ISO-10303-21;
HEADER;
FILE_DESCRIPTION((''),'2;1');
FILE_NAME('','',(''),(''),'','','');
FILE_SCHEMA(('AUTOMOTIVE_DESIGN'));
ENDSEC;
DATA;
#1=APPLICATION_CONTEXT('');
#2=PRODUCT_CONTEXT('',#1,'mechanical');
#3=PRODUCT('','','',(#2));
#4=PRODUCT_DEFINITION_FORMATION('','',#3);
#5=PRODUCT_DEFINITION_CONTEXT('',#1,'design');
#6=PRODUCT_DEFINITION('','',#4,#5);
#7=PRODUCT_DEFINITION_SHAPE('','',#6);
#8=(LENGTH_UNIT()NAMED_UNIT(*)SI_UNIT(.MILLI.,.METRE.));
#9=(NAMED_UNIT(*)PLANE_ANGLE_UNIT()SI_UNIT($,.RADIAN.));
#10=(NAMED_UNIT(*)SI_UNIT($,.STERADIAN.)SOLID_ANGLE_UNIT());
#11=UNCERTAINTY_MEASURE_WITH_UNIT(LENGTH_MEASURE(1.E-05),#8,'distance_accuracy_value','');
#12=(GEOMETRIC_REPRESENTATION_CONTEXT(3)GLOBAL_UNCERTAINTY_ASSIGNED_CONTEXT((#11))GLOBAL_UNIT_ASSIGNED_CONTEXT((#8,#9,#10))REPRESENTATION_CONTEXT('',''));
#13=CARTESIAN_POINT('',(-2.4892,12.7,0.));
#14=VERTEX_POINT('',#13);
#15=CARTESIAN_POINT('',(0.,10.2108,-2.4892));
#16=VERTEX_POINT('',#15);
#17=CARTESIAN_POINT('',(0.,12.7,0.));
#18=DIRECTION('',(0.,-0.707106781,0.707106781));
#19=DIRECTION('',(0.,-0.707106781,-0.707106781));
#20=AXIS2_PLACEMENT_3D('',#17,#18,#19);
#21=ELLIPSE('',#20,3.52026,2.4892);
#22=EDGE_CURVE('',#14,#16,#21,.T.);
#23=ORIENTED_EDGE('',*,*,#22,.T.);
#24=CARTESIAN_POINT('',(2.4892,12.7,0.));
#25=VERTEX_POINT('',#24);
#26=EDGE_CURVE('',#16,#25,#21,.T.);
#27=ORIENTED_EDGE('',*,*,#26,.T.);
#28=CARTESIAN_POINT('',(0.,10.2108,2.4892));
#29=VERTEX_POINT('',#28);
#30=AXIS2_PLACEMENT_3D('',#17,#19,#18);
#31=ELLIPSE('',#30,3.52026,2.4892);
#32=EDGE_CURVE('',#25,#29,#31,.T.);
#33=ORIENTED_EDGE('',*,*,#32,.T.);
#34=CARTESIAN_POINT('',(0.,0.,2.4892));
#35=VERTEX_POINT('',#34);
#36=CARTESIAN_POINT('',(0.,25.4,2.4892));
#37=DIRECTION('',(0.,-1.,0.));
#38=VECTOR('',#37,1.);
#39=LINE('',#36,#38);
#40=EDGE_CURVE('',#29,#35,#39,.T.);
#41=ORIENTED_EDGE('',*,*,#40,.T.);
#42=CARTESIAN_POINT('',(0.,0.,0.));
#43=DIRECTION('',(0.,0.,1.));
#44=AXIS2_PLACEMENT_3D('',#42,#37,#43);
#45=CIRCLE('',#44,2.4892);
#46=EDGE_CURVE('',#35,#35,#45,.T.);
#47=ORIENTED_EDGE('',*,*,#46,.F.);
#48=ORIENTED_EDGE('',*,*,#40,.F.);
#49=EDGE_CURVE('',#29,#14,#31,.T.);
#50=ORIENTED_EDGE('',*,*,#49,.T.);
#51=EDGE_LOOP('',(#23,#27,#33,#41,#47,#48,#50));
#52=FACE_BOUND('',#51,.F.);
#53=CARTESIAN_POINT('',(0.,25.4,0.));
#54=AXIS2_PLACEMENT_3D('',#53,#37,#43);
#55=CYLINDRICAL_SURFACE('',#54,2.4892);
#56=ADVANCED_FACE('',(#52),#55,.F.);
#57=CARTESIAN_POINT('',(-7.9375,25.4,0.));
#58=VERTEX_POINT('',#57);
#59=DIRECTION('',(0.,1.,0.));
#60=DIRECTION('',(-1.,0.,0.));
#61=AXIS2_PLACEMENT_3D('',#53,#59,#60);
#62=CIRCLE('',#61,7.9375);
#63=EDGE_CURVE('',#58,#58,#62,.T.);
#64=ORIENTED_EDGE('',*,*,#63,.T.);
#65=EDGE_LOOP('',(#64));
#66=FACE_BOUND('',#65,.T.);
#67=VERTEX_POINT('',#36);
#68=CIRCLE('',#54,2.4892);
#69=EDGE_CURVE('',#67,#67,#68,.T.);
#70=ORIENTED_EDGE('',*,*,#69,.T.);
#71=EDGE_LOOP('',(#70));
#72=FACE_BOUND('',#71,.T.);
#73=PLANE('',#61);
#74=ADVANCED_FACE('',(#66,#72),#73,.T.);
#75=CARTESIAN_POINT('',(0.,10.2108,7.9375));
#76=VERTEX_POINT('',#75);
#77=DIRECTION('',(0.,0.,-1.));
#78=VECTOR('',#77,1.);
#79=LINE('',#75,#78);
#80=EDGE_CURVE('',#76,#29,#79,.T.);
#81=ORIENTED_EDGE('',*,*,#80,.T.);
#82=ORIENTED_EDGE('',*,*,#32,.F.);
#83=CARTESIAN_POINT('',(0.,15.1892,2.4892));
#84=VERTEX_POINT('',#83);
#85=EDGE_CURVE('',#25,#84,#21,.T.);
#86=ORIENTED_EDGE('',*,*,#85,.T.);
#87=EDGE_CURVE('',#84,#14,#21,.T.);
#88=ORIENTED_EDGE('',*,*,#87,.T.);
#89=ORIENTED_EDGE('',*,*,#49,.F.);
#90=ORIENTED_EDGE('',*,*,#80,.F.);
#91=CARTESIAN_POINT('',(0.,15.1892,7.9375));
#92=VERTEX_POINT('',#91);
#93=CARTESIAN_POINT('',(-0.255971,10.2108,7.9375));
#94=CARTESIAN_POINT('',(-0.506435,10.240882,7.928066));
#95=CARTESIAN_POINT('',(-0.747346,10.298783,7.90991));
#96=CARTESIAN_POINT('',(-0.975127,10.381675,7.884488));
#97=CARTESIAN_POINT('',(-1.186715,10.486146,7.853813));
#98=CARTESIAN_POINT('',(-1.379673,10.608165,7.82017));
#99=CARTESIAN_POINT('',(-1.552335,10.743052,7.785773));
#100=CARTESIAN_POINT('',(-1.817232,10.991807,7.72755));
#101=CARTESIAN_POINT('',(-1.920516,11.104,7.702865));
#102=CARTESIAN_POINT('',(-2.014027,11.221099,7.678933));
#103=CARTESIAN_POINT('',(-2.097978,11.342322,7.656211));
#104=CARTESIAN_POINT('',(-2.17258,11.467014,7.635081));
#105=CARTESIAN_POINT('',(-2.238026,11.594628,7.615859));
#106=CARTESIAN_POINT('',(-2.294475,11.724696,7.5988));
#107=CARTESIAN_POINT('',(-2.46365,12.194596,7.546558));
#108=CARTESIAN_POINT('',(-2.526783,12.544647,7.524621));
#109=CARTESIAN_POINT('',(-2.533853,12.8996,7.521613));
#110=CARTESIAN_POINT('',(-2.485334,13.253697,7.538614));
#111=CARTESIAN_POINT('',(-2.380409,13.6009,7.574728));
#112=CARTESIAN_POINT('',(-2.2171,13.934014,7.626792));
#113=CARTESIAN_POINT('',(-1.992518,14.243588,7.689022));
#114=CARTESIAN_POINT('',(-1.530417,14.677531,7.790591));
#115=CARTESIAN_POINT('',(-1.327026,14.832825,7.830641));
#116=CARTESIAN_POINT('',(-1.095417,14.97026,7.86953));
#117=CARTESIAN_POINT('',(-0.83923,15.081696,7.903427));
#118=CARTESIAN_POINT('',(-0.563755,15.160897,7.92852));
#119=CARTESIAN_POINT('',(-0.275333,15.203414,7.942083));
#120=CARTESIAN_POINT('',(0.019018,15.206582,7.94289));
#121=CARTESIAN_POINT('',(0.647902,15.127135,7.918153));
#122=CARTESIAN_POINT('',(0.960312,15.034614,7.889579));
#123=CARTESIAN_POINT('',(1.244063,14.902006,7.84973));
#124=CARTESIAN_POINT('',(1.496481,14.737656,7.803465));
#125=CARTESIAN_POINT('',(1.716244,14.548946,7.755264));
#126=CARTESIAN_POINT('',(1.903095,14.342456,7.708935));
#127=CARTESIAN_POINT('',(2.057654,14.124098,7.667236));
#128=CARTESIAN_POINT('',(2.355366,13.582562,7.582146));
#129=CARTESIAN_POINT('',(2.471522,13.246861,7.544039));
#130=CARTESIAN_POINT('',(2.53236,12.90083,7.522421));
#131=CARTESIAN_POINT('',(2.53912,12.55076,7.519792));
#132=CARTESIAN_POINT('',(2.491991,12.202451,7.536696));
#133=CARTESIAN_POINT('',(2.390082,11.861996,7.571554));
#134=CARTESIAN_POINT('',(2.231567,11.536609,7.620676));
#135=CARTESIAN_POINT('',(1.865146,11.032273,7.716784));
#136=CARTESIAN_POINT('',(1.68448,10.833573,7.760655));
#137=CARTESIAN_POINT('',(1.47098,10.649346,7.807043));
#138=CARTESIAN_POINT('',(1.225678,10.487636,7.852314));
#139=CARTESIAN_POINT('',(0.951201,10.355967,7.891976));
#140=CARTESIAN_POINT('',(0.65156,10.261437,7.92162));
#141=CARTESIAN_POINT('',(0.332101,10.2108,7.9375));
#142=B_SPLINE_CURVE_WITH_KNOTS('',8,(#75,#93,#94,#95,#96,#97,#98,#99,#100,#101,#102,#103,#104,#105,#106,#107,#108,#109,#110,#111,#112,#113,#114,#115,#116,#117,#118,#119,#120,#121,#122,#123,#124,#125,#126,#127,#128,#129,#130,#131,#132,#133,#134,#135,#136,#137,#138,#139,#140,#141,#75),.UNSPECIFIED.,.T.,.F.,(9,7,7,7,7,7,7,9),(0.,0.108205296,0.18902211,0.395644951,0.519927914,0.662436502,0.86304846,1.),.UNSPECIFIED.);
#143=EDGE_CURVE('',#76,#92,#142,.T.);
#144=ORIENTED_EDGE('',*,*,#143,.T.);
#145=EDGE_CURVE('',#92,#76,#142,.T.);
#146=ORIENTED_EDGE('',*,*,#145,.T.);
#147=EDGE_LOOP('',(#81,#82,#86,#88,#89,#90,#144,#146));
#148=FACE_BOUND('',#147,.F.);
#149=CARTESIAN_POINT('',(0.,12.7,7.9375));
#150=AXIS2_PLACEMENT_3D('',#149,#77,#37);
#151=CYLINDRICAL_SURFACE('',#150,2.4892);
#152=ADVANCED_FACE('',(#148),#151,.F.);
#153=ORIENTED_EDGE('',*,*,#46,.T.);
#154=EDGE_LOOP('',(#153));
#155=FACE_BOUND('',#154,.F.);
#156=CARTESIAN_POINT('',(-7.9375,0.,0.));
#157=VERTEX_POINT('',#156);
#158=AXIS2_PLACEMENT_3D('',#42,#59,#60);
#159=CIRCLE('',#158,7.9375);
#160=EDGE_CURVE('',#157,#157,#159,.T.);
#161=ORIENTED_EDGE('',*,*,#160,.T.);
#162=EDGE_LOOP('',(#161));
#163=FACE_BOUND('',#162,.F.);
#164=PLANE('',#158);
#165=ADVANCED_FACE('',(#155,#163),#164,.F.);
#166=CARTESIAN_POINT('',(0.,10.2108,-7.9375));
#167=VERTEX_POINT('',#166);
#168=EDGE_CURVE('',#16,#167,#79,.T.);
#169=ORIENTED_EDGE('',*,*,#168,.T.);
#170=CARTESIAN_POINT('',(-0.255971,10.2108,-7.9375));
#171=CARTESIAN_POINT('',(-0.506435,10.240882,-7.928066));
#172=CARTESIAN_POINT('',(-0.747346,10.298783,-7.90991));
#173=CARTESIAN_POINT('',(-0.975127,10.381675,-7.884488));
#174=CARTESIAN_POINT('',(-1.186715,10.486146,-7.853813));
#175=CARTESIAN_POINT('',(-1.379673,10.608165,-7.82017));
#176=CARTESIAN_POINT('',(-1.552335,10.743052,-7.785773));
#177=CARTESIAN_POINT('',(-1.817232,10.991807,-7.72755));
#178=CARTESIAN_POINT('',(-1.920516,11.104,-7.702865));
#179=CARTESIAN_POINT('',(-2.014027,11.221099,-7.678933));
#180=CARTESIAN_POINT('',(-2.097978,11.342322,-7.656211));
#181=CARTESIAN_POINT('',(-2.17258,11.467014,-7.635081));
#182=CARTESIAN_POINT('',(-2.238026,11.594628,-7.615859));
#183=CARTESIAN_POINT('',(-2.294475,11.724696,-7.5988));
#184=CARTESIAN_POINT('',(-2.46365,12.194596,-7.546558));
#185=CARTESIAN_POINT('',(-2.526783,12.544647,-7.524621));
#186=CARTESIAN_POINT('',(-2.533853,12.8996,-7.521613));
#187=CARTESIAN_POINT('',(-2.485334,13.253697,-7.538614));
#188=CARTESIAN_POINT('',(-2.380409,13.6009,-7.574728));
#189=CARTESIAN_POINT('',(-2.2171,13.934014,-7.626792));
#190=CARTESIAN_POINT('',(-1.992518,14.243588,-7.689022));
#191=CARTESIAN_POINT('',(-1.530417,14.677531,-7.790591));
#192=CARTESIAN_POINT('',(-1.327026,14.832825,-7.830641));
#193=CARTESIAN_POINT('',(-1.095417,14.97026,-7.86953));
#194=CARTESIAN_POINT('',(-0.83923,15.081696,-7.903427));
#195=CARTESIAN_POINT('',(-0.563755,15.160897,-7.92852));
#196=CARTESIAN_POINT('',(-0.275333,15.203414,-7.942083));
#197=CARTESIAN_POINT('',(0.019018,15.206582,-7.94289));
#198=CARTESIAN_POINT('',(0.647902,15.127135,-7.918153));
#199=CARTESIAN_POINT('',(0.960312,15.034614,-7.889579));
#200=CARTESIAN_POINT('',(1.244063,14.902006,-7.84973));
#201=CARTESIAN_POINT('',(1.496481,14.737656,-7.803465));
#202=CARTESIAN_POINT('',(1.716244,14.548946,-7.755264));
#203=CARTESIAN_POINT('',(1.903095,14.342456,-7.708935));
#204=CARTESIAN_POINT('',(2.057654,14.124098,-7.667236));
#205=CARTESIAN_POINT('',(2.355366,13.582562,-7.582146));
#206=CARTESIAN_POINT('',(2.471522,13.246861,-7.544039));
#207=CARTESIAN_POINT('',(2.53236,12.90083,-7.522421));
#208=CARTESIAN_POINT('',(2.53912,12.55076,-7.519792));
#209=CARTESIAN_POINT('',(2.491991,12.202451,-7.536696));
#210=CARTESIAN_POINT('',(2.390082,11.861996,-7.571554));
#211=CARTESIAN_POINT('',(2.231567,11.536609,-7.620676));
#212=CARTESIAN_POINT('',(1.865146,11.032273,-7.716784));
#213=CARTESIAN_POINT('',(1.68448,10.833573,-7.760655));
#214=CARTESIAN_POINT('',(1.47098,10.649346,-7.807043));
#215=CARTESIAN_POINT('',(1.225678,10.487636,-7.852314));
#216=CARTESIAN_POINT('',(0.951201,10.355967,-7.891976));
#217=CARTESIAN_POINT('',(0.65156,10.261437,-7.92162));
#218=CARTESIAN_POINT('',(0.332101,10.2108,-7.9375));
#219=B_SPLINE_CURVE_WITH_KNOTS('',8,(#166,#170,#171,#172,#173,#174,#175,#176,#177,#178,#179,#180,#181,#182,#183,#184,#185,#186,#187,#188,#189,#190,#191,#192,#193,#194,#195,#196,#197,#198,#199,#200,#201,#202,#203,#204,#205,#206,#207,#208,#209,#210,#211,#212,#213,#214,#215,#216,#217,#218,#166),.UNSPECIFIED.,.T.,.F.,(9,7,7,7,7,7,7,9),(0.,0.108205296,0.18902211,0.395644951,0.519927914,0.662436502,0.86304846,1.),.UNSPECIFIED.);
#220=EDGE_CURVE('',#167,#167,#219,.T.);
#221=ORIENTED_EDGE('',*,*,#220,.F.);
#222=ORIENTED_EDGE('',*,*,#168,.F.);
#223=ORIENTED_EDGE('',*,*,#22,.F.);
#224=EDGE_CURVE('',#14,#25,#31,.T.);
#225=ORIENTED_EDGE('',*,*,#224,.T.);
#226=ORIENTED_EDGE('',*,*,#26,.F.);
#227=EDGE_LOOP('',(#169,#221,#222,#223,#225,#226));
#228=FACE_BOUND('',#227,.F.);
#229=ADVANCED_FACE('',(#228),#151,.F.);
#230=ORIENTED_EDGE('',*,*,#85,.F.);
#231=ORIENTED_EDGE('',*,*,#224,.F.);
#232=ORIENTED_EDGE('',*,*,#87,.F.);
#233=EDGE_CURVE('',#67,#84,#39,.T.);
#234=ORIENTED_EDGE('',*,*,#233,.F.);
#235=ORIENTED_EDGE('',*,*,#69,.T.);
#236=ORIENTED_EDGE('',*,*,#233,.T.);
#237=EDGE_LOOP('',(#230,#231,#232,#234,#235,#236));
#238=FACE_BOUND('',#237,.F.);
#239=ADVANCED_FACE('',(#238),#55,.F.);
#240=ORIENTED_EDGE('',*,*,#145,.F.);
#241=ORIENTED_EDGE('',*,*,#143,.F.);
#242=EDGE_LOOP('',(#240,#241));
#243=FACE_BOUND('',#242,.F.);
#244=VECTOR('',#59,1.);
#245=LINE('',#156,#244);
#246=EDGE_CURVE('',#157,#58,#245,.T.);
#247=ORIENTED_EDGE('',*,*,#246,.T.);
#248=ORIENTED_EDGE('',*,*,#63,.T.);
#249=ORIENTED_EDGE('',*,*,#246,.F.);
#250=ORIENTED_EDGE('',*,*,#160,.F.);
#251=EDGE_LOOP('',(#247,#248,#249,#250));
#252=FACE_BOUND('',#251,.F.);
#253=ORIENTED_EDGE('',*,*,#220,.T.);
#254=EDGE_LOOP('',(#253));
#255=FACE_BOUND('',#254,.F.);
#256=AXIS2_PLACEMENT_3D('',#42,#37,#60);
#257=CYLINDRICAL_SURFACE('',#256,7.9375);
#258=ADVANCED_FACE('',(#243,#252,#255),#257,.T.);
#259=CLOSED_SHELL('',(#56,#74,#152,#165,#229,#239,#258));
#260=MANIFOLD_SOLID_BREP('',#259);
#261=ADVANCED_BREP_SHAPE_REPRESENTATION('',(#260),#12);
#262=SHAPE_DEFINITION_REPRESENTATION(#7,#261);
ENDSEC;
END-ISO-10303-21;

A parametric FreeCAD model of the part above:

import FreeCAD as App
import Part
import Sketcher

V = App.Vector
Q = App.Units.Quantity

doc = App.newDocument("Part")
body = doc.addObject("PartDesign::Body", "Body")

# Sketch on XZ plane
sketch1 = doc.addObject("Sketcher::SketchObject", "Sketch")
body.addObject(sketch1)
sketch1.AttachmentSupport = (doc.XZ_Plane, [""])
sketch1.MapMode = "FlatFace"
sketch1.addGeometry(Part.Circle(V(0, 0, 0), V(0, 0, 1), 8), False)
sketch1.addConstraint(Sketcher.Constraint("Coincident", 0, 3, -1, 1))
sketch1.addConstraint(Sketcher.Constraint("Diameter", 0, Q("0.625 in")))
pad1 = doc.addObject("PartDesign::Pad", "Pad")
body.addObject(pad1)
pad1.Profile = sketch1
pad1.Length = Q("1 in")
pad1.Reversed = True

# Sketch on XZ plane
sketch2 = doc.addObject("Sketcher::SketchObject", "Sketch001")
body.addObject(sketch2)
sketch2.AttachmentSupport = (doc.XZ_Plane, [""])
sketch2.MapMode = "FlatFace"
sketch2.AttachmentOffset = App.Placement(V(0, 0, -1 * 25.4), App.Rotation())
sketch2.addGeometry(Part.Circle(V(0, 0, 0), V(0, 0, 1), 2.5), False)
sketch2.addConstraint(Sketcher.Constraint("Coincident", 0, 3, -1, 1))
sketch2.addConstraint(Sketcher.Constraint("Diameter", 0, Q("0.196 in")))
doc.recompute()
hole = doc.addObject("PartDesign::Hole", "Hole")
body.addObject(hole)
hole.Profile = sketch2
hole.ThreadType = "None"
hole.Diameter = Q("0.196 in")
hole.DepthType = "ThroughAll"
hole.Reversed = True

# Sketch on XY plane
sketch3 = doc.addObject("Sketcher::SketchObject", "Sketch002")
body.addObject(sketch3)
sketch3.AttachmentSupport = (doc.XY_Plane, [""])
sketch3.MapMode = "FlatFace"
sketch3.AttachmentOffset = App.Placement(V(0, 0, 0.3125 * 25.4), App.Rotation())
sketch3.addGeometry(Part.Circle(V(0, 12.7, 0), V(0, 0, 1), 2.5), False)
sketch3.addConstraint(Sketcher.Constraint("PointOnObject", 0, 3, -2))
sketch3.addConstraint(Sketcher.Constraint("Diameter", 0, Q("0.196 in")))
sketch3.addConstraint(Sketcher.Constraint("DistanceY", -1, 1, 0, 3, Q("0.5 in")))
doc.recompute()
hole2 = doc.addObject("PartDesign::Hole", "Hole001")
body.addObject(hole2)
hole2.Profile = sketch3
hole2.ThreadType = "None"
hole2.Diameter = Q("0.196 in")
hole2.DepthType = "ThroughAll"

doc.recompute()
